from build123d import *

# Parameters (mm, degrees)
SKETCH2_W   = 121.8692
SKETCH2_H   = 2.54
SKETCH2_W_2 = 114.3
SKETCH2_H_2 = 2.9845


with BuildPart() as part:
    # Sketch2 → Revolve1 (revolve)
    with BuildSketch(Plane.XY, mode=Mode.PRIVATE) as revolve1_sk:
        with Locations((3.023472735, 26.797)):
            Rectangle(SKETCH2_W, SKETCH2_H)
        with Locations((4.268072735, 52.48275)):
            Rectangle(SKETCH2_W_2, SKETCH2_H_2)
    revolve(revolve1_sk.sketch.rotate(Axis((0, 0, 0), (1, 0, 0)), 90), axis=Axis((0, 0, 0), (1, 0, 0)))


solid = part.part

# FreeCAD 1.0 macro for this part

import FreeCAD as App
import Part
import Sketcher
Q = App.Units.Quantity

doc = App.newDocument("Part")
body = doc.addObject("PartDesign::Body", "Body")
body.AllowCompound = True

sketch1 = body.newObject("Sketcher::SketchObject", "Sketch")
sketch1.AttachmentSupport = (doc.getObject("XY_Plane"), [""])
sketch1.MapMode = "FlatFace"
sketch1.addGeometry([
    Part.LineSegment(App.Vector(-57.9, 28.1, 0), App.Vector(-57.9, 25.5, 0)),
    Part.LineSegment(App.Vector(-57.9, 25.5, 0), App.Vector(64, 25.5, 0)),
    Part.LineSegment(App.Vector(64, 25.5, 0), App.Vector(64, 28.1, 0)),
    Part.LineSegment(App.Vector(64, 28.1, 0), App.Vector(-57.9, 28.1, 0)),
    Part.LineSegment(App.Vector(-52.9, 54, 0), App.Vector(-52.9, 51, 0)),
    Part.LineSegment(App.Vector(-52.9, 51, 0), App.Vector(61.4, 51, 0)),
    Part.LineSegment(App.Vector(61.4, 51, 0), App.Vector(61.4, 54, 0)),
    Part.LineSegment(App.Vector(61.4, 54, 0), App.Vector(-52.9, 54, 0)),
], False)
sketch1.addConstraint([
    Sketcher.Constraint("Coincident", 0, 2, 1, 1),
    Sketcher.Constraint("Coincident", 1, 2, 2, 1),
    Sketcher.Constraint("Coincident", 2, 2, 3, 1),
    Sketcher.Constraint("Coincident", 3, 2, 0, 1),
    Sketcher.Constraint("Coincident", 4, 2, 5, 1),
    Sketcher.Constraint("Coincident", 5, 2, 6, 1),
    Sketcher.Constraint("Coincident", 6, 2, 7, 1),
    Sketcher.Constraint("Coincident", 7, 2, 4, 1),
    Sketcher.Constraint("Vertical", 0),
    Sketcher.Constraint("Horizontal", 1),
    Sketcher.Constraint("Vertical", 2),
    Sketcher.Constraint("Horizontal", 3),
    Sketcher.Constraint("Vertical", 4),
    Sketcher.Constraint("Horizontal", 5),
    Sketcher.Constraint("Vertical", 6),
    Sketcher.Constraint("Horizontal", 7),
    Sketcher.Constraint("DistanceX", 5, 1, 5, 2, Q("4.5 in")),
    Sketcher.Constraint("DistanceY", 0, 2, 0, 1, Q("0.1 in")),
    Sketcher.Constraint("DistanceX", 4, 2, 2, 2, Q("4.6 in")),
    Sketcher.Constraint("DistanceX", 1, 1, 1, 2, Q("4.798 in")),
    Sketcher.Constraint("DistanceY", 2, 2, 6, 2, Q("1.02 in")),
    Sketcher.Constraint("DistanceY", 4, 2, 4, 1, Q("0.1175 in")),
    Sketcher.Constraint("DistanceY", -1, 1, 0, 2, Q("1.005 in")),
    Sketcher.Constraint("DistanceX", 0, 2, -1, 1, 57.911127),
])
revolution = body.newObject("PartDesign::Revolution", "Revolution")
revolution.Profile = sketch1
revolution.ReferenceAxis = (sketch1, ["H_Axis"])
revolution.Angle = 360

doc.recompute()
